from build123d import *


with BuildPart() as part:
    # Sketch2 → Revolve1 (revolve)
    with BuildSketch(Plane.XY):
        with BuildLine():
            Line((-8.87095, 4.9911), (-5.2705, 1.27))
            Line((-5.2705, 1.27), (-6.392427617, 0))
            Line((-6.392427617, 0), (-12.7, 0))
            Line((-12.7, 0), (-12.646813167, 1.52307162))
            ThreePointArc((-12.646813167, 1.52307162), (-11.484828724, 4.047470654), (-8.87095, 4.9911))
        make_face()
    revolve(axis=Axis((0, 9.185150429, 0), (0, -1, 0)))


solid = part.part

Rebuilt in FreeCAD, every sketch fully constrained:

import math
import FreeCAD as App
import Part
import Sketcher
from FreeCAD import Vector
Q = App.Units.Quantity

doc = App.newDocument("Part")
body = doc.addObject("PartDesign::Body", "Body")

# Sketch on XY plane
sketch1 = body.newObject("Sketcher::SketchObject", "Sketch")
sketch1.AttachmentSupport = (doc.getObject("XY_Plane"), [""])
sketch1.MapMode = "FlatFace"
sketch1.addGeometry(Part.LineSegment(Vector(-5.3, 1.3, 0), Vector(-8.9, 5, 0)), False)
sketch1.addGeometry(Part.ArcOfCircle(Part.Circle(Vector(-9.1, 1.4, 0), Vector(0, 0, 1), 3.6), math.radians(87), math.radians(178)), False)
sketch1.addGeometry(Part.LineSegment(Vector(-12.6, 1.5, 0), Vector(-12.7, 0, 0)), False)
sketch1.addGeometry(Part.LineSegment(Vector(-12.7, 0, 0), Vector(-6.4, 0, 0)), False)
sketch1.addGeometry(Part.LineSegment(Vector(-6.4, 0, 0), Vector(-5.3, 1.3, 0)), False)
sketch1.addConstraint(Sketcher.Constraint("Coincident", 0, 2, 1, 1))
sketch1.addConstraint(Sketcher.Constraint("Tangent", 1, 2, 2, 1))
sketch1.addConstraint(Sketcher.Constraint("Coincident", 2, 2, 3, 1))
sketch1.addConstraint(Sketcher.Constraint("Coincident", 3, 2, 4, 1))
sketch1.addConstraint(Sketcher.Constraint("Coincident", 4, 2, 0, 1))
sketch1.addConstraint(Sketcher.Constraint("Horizontal", 3))
sketch1.addConstraint(Sketcher.Constraint("PointOnObject", 2, 2, -1))
sketch1.addConstraint(Sketcher.Constraint("Angle", 2, Q("-92 deg")))
sketch1.addConstraint(Sketcher.Constraint("DistanceX", 2, 2, -1, 1, Q("0.5 in")))
sketch1.addConstraint(Sketcher.Constraint("Distance", 2, Q("0.06 in")))
sketch1.addConstraint(Sketcher.Constraint("DistanceY", -1, 1, 4, 2, Q("0.05 in")))
sketch1.addConstraint(Sketcher.Constraint("DistanceY", -1, 1, 0, 2, Q("0.1965 in")))
sketch1.addConstraint(Sketcher.Constraint("DistanceX", 4, 2, -1, 1, Q("0.2075 in")))
sketch1.addConstraint(Sketcher.Constraint("Radius", 1, 3.598103))
sketch1.addConstraint(Sketcher.Constraint("DistanceX", 3, 1, 3, 2, 6.307572))
revolution = body.newObject("PartDesign::Revolution", "Revolution")
revolution.Profile = sketch1
revolution.ReferenceAxis = (sketch1, ["V_Axis"])
revolution.Angle = 360

doc.recompute()
